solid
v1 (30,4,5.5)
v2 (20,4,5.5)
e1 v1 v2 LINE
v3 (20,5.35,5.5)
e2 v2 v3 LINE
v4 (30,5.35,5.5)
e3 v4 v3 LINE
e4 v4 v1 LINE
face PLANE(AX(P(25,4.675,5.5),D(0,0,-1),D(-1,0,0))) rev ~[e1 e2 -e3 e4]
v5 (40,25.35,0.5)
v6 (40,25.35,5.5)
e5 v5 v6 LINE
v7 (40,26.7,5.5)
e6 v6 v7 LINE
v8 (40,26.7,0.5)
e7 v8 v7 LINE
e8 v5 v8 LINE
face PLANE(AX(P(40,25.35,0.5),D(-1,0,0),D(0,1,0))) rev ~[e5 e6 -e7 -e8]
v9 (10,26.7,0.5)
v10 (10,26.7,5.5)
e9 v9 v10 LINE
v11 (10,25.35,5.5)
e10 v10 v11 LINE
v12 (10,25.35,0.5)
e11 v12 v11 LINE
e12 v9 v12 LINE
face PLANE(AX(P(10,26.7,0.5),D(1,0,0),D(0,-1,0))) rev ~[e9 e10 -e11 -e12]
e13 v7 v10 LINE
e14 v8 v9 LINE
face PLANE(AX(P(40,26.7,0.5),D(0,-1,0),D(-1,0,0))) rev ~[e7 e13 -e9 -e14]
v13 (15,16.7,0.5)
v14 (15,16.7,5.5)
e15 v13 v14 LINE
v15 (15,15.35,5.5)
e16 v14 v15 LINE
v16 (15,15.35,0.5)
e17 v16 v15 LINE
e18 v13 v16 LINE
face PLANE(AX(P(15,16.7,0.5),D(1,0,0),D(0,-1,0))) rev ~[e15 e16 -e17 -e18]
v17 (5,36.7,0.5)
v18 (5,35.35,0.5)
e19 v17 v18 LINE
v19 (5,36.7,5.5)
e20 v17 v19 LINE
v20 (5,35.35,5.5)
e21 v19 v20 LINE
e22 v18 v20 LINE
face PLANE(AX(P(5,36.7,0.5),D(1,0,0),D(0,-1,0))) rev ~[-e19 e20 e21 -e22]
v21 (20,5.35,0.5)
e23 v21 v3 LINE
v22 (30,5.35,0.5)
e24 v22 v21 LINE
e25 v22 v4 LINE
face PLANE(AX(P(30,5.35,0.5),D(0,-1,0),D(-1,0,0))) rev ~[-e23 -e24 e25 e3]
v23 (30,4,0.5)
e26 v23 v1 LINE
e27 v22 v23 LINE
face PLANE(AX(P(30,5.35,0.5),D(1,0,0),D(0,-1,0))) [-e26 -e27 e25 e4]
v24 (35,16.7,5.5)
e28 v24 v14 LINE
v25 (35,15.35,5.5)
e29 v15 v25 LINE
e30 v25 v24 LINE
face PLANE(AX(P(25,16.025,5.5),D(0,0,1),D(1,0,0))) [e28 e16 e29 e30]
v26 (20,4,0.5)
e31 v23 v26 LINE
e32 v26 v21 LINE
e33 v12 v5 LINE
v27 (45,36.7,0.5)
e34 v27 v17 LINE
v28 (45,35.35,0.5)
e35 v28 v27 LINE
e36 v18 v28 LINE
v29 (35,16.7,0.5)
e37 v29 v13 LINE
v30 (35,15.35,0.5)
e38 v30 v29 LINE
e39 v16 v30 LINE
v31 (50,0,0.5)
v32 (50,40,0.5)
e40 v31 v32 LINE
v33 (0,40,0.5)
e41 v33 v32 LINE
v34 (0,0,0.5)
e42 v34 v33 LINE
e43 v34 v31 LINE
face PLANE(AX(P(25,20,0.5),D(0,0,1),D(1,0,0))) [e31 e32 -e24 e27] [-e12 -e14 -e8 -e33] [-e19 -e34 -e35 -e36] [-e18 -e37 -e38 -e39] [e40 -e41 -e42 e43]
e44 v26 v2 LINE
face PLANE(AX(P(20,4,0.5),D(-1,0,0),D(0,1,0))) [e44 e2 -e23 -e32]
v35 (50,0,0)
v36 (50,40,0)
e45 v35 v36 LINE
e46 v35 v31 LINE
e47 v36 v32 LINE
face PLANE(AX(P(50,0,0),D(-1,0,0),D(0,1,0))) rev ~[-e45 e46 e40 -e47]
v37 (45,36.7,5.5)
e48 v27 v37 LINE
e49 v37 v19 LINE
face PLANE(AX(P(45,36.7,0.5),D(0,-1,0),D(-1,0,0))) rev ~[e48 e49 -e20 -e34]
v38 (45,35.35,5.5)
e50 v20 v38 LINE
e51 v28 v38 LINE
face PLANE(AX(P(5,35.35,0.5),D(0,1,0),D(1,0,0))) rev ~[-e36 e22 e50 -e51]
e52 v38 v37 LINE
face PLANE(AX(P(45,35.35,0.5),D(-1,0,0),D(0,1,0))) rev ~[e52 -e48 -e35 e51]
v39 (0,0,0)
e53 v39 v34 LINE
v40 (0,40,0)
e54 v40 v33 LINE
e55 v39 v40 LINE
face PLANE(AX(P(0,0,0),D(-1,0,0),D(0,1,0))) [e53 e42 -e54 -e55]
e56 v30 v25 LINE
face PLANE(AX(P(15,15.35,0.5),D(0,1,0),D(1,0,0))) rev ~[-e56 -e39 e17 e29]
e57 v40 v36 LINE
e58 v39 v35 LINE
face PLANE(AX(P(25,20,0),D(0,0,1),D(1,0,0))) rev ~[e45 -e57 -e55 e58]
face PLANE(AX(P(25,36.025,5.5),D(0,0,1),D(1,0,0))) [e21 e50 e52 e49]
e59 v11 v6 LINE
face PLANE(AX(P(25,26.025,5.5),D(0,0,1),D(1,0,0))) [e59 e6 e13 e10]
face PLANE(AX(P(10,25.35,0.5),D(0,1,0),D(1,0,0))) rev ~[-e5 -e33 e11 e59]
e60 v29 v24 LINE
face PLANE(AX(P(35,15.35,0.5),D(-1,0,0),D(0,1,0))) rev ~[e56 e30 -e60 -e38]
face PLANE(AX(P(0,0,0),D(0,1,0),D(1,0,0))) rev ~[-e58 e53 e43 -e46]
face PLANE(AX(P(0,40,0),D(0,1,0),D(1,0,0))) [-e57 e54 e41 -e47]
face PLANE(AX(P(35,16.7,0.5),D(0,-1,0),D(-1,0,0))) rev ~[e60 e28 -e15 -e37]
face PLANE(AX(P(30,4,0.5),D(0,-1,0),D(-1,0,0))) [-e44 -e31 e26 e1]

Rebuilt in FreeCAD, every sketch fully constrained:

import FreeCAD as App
import Part
import Sketcher
Q = App.Units.Quantity

doc = App.newDocument("Part")
body = doc.addObject("PartDesign::Body", "Body")

# Sketch on XY plane
sketch1 = body.newObject("Sketcher::SketchObject", "Sketch")
sketch1.AttachmentSupport = (doc.getObject("XY_Plane"), [""])
sketch1.MapMode = "FlatFace"
sketch1.addGeometry(Part.LineSegment(App.Vector(0, 40, 0), App.Vector(0, 0, 0)), False)
sketch1.addGeometry(Part.LineSegment(App.Vector(0, 0, 0), App.Vector(50, 0, 0)), False)
sketch1.addGeometry(Part.LineSegment(App.Vector(50, 0, 0), App.Vector(50, 40, 0)), False)
sketch1.addGeometry(Part.LineSegment(App.Vector(50, 40, 0), App.Vector(0, 40, 0)), False)
sketch1.addConstraint(Sketcher.Constraint("Coincident", 0, 2, 1, 1))
sketch1.addConstraint(Sketcher.Constraint("Coincident", 1, 2, 2, 1))
sketch1.addConstraint(Sketcher.Constraint("Coincident", 2, 2, 3, 1))
sketch1.addConstraint(Sketcher.Constraint("Coincident", 3, 2, 0, 1))
sketch1.addConstraint(Sketcher.Constraint("Vertical", 0))
sketch1.addConstraint(Sketcher.Constraint("Horizontal", 1))
sketch1.addConstraint(Sketcher.Constraint("Vertical", 2))
sketch1.addConstraint(Sketcher.Constraint("Horizontal", 3))
sketch1.addConstraint(Sketcher.Constraint("Coincident", 0, 2, -1, 1))
sketch1.addConstraint(Sketcher.Constraint("DistanceX", 1, 1, 1, 2, Q("50 mm")))
sketch1.addConstraint(Sketcher.Constraint("DistanceY", 0, 2, 0, 1, Q("40 mm")))
pad1 = body.newObject("PartDesign::Pad", "Pad")
pad1.Profile = sketch1
pad1.Length = 0.5

# Sketch on XY plane
sketch2 = body.newObject("Sketcher::SketchObject", "Sketch001")
sketch2.AttachmentSupport = (doc.getObject("XY_Plane"), [""])
sketch2.MapMode = "FlatFace"
sketch2.AttachmentOffset = App.Placement(App.Vector(0, 0, 0.5), App.Rotation())
sketch2.addGeometry(Part.LineSegment(App.Vector(30, 4, 0), App.Vector(30, 5.3, 0)), False)
sketch2.addGeometry(Part.LineSegment(App.Vector(30, 5.3, 0), App.Vector(20, 5.3, 0)), False)
sketch2.addGeometry(Part.LineSegment(App.Vector(20, 5.3, 0), App.Vector(20, 4, 0)), False)
sketch2.addGeometry(Part.LineSegment(App.Vector(20, 4, 0), App.Vector(30, 4, 0)), False)
sketch2.addGeometry(Part.LineSegment(App.Vector(35, 15.3, 0), App.Vector(35, 16.7, 0)), False)
sketch2.addGeometry(Part.LineSegment(App.Vector(35, 16.7, 0), App.Vector(15, 16.7, 0)), False)
sketch2.addGeometry(Part.LineSegment(App.Vector(15, 16.7, 0), App.Vector(15, 15.3, 0)), False)
sketch2.addGeometry(Part.LineSegment(App.Vector(15, 15.3, 0), App.Vector(35, 15.3, 0)), False)
sketch2.addGeometry(Part.LineSegment(App.Vector(40, 25.4, 0), App.Vector(40, 26.7, 0)), False)
sketch2.addGeometry(Part.LineSegment(App.Vector(40, 26.7, 0), App.Vector(10, 26.7, 0)), False)
sketch2.addGeometry(Part.LineSegment(App.Vector(10, 26.7, 0), App.Vector(10, 25.4, 0)), False)
sketch2.addGeometry(Part.LineSegment(App.Vector(10, 25.4, 0), App.Vector(40, 25.4, 0)), False)
sketch2.addGeometry(Part.LineSegment(App.Vector(5, 35.4, 0), App.Vector(45, 35.4, 0)), False)
sketch2.addGeometry(Part.LineSegment(App.Vector(45, 35.4, 0), App.Vector(45, 36.7, 0)), False)
sketch2.addGeometry(Part.LineSegment(App.Vector(45, 36.7, 0), App.Vector(5, 36.7, 0)), False)
sketch2.addGeometry(Part.LineSegment(App.Vector(5, 36.7, 0), App.Vector(5, 35.4, 0)), False)
sketch2.addConstraint(Sketcher.Constraint("Coincident", 0, 2, 1, 1))
sketch2.addConstraint(Sketcher.Constraint("Coincident", 1, 2, 2, 1))
sketch2.addConstraint(Sketcher.Constraint("Coincident", 2, 2, 3, 1))
sketch2.addConstraint(Sketcher.Constraint("Coincident", 3, 2, 0, 1))
sketch2.addConstraint(Sketcher.Constraint("Coincident", 4, 2, 5, 1))
sketch2.addConstraint(Sketcher.Constraint("Coincident", 5, 2, 6, 1))
sketch2.addConstraint(Sketcher.Constraint("Coincident", 6, 2, 7, 1))
sketch2.addConstraint(Sketcher.Constraint("Coincident", 7, 2, 4, 1))
sketch2.addConstraint(Sketcher.Constraint("Coincident", 8, 2, 9, 1))
sketch2.addConstraint(Sketcher.Constraint("Coincident", 9, 2, 10, 1))
sketch2.addConstraint(Sketcher.Constraint("Coincident", 10, 2, 11, 1))
sketch2.addConstraint(Sketcher.Constraint("Coincident", 11, 2, 8, 1))
sketch2.addConstraint(Sketcher.Constraint("Coincident", 12, 2, 13, 1))
sketch2.addConstraint(Sketcher.Constraint("Coincident", 13, 2, 14, 1))
sketch2.addConstraint(Sketcher.Constraint("Coincident", 14, 2, 15, 1))
sketch2.addConstraint(Sketcher.Constraint("Coincident", 15, 2, 12, 1))
sketch2.addConstraint(Sketcher.Constraint("Vertical", 0))
sketch2.addConstraint(Sketcher.Constraint("Horizontal", 1))
sketch2.addConstraint(Sketcher.Constraint("Vertical", 2))
sketch2.addConstraint(Sketcher.Constraint("Horizontal", 3))
sketch2.addConstraint(Sketcher.Constraint("Vertical", 4))
sketch2.addConstraint(Sketcher.Constraint("Horizontal", 5))
sketch2.addConstraint(Sketcher.Constraint("Vertical", 6))
sketch2.addConstraint(Sketcher.Constraint("Horizontal", 7))
sketch2.addConstraint(Sketcher.Constraint("Vertical", 8))
sketch2.addConstraint(Sketcher.Constraint("Horizontal", 9))
sketch2.addConstraint(Sketcher.Constraint("Vertical", 10))
sketch2.addConstraint(Sketcher.Constraint("Horizontal", 11))
sketch2.addConstraint(Sketcher.Constraint("Horizontal", 12))
sketch2.addConstraint(Sketcher.Constraint("Vertical", 13))
sketch2.addConstraint(Sketcher.Constraint("Horizontal", 14))
sketch2.addConstraint(Sketcher.Constraint("Vertical", 15))
sketch2.addConstraint(Sketcher.Constraint("Equal", 2, 4))
sketch2.addConstraint(Sketcher.Constraint("Equal", 6, 8))
sketch2.addConstraint(Sketcher.Constraint("Equal", 10, 13))
sketch2.addConstraint(Sketcher.Constraint("DistanceX", 1, 2, 1, 1, Q("10 mm")))
sketch2.addConstraint(Sketcher.Constraint("DistanceX", 5, 2, 5, 1, Q("20 mm")))
sketch2.addConstraint(Sketcher.Constraint("DistanceX", 9, 2, 9, 1, Q("30 mm")))
sketch2.addConstraint(Sketcher.Constraint("DistanceX", 12, 1, 12, 2, Q("40 mm")))
sketch2.addConstraint(Sketcher.Constraint("DistanceX", -1, 1, 0, 2, Q("30 mm")))
sketch2.addConstraint(Sketcher.Constraint("DistanceY", -1, 1, 2, 2, Q("4 mm")))
sketch2.addConstraint(Sketcher.Constraint("DistanceX", -1, 1, 4, 2, Q("35 mm")))
sketch2.addConstraint(Sketcher.Constraint("DistanceX", -1, 1, 8, 2, Q("40 mm")))
sketch2.addConstraint(Sketcher.Constraint("DistanceX", -1, 1, 12, 2, Q("45 mm")))
sketch2.addConstraint(Sketcher.Constraint("DistanceY", 1, 2, 6, 2, Q("10 mm")))
sketch2.addConstraint(Sketcher.Constraint("DistanceY", 4, 2, 8, 2, Q("10 mm")))
sketch2.addConstraint(Sketcher.Constraint("DistanceY", 11, 2, 12, 2, Q("10 mm")))
sketch2.addConstraint(Sketcher.Constraint("DistanceY", 0, 1, 0, 2, Q("1.35 mm")))
pad2 = body.newObject("PartDesign::Pad", "Pad001")
pad2.Profile = sketch2
pad2.Length = 5

doc.recompute()
